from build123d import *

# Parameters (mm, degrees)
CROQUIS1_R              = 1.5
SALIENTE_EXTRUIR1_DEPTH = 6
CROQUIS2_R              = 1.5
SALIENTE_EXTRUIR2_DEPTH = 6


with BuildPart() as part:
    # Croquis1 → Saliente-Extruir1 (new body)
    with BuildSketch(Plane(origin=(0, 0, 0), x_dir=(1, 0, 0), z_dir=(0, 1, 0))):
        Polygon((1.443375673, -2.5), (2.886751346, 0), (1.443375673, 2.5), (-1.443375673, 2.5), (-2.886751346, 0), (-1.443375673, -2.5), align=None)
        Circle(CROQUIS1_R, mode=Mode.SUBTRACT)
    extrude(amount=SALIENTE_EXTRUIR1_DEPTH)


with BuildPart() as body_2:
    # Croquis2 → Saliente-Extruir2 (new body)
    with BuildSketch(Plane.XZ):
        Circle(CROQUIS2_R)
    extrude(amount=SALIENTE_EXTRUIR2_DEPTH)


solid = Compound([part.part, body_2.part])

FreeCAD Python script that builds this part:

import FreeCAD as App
import Part
import Sketcher

V = App.Vector
Q = App.Units.Quantity

doc = App.newDocument("Part")
params = doc.addObject("Spreadsheet::Sheet", "Params")
for row, (alias, value) in enumerate([
    ("sketch1_diameter", "3 mm"),
    ("pad1_length", "6 mm"),
    ("sketch2_diameter", "3 mm"),
    ("pad2_length", "6 mm"),
], start=1):
    params.set(f"A{row}", alias)
    params.set(f"B{row}", "=" + value)
    params.setAlias(f"B{row}", alias)

body = doc.addObject("PartDesign::Body", "Body")

sketch1 = doc.addObject("Sketcher::SketchObject", "Sketch")
body.addObject(sketch1)
sketch1.AttachmentSupport = (doc.XZ_Plane, [""])
sketch1.MapMode = "FlatFace"
sketch1.addGeometry([
    Part.LineSegment(V(1.4, 2.5, 0), V(2.9, 0, 0)),
    Part.LineSegment(V(2.9, 0, 0), V(1.4, -2.5, 0)),
    Part.LineSegment(V(1.4, -2.5, 0), V(-1.4, -2.5, 0)),
    Part.LineSegment(V(-1.4, -2.5, 0), V(-2.9, 0, 0)),
    Part.LineSegment(V(-2.9, 0, 0), V(-1.4, 2.5, 0)),
    Part.LineSegment(V(-1.4, 2.5, 0), V(1.4, 2.5, 0)),
    Part.Circle(V(0, 0, 0), V(0, 0, 1), 1.5),
], False)
sketch1.addConstraint([
    Sketcher.Constraint("Coincident", 0, 2, 1, 1),
    Sketcher.Constraint("Coincident", 1, 2, 2, 1),
    Sketcher.Constraint("Coincident", 2, 2, 3, 1),
    Sketcher.Constraint("Coincident", 3, 2, 4, 1),
    Sketcher.Constraint("Coincident", 4, 2, 5, 1),
    Sketcher.Constraint("Coincident", 5, 2, 0, 1),
    Sketcher.Constraint("Horizontal", 2),
    Sketcher.Constraint("Horizontal", 5),
    Sketcher.Constraint("Coincident", 6, 3, -1, 1),
    Sketcher.Constraint("Symmetric", 0, 2, 3, 2, -1, 1),
    Sketcher.Constraint("Symmetric", 1, 2, 4, 2, -1, 1),
    Sketcher.Constraint("PointOnObject", 0, 2, -1),
    Sketcher.Constraint("Parallel", 0, 3),
    Sketcher.Constraint("Vertical", 2, 2, 4, 2),
    Sketcher.Constraint("Diameter", 6, Q("3 mm")),
    Sketcher.Constraint("Angle", 0, Q("-60 deg")),
    Sketcher.Constraint("DistanceY", 2, 2, 4, 2, Q("5 mm")),
    Sketcher.Constraint("DistanceX", 2, 2, 2, 1, Q("2.886751 mm")),
])
sketch1.setExpression("Constraints[14]", "Params.sketch1_diameter")
pad1 = doc.addObject("PartDesign::Pad", "Pad")
body.addObject(pad1)
pad1.Profile = sketch1
pad1.setExpression("Length", "Params.pad1_length")
pad1.Reversed = True
body2 = doc.addObject("PartDesign::Body", "Body001")

sketch2 = doc.addObject("Sketcher::SketchObject", "Sketch001")
body2.addObject(sketch2)
sketch2.AttachmentSupport = (doc.getObject("XZ_Plane001"), [""])
sketch2.MapMode = "FlatFace"
sketch2.addGeometry(Part.Circle(V(0, 0, 0), V(0, 0, 1), 1.5), False)
sketch2.addConstraint([
    Sketcher.Constraint("Coincident", 0, 3, -1, 1),
    Sketcher.Constraint("Diameter", 0, Q("3 mm")),
])
sketch2.setExpression("Constraints[1]", "Params.sketch2_diameter")
pad2 = doc.addObject("PartDesign::Pad", "Pad001")
body2.addObject(pad2)
pad2.Profile = sketch2
pad2.setExpression("Length", "Params.pad2_length")

doc.recompute()
